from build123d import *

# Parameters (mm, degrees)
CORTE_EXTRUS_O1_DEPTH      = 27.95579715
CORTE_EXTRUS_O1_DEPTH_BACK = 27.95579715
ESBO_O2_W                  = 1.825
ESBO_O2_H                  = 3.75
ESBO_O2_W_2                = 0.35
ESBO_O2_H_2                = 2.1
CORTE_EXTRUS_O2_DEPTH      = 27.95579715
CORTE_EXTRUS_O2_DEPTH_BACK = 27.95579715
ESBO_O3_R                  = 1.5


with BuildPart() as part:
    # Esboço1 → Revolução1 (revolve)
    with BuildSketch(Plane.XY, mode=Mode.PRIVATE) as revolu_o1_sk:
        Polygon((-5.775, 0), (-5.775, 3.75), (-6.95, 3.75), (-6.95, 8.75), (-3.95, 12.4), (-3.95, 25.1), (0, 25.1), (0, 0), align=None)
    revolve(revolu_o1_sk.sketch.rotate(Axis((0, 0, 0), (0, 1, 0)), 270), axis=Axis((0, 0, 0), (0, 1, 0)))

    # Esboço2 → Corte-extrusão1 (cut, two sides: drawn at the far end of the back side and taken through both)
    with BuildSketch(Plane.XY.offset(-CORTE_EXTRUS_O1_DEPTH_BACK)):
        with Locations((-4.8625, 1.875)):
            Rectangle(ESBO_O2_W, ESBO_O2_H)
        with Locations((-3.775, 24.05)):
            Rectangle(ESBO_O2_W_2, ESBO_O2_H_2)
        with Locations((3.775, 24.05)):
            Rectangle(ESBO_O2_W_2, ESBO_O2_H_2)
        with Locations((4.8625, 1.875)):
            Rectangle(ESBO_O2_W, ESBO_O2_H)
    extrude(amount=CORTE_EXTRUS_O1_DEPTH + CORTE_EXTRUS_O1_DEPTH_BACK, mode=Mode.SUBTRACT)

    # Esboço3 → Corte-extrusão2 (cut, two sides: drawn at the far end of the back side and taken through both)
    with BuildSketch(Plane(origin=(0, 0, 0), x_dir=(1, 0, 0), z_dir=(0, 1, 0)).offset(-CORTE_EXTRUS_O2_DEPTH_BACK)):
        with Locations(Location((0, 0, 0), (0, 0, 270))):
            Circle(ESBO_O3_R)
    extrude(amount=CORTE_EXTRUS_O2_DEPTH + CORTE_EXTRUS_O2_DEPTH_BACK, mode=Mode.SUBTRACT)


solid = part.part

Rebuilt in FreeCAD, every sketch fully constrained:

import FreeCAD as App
import Part
import Sketcher

doc = App.newDocument("Part")
body = doc.addObject("PartDesign::Body", "Body")

# Sketch on XY plane
sketch1 = body.newObject("Sketcher::SketchObject", "Sketch")
sketch1.AttachmentSupport = (doc.getObject("XY_Plane"), [""])
sketch1.MapMode = "FlatFace"
sketch1.addGeometry(Part.LineSegment(App.Vector(-5.775, 3.75, 0), App.Vector(-5.775, 0, 0)), False)
sketch1.addGeometry(Part.LineSegment(App.Vector(-5.775, 0, 0), App.Vector(0, 0, 0)), False)
sketch1.addGeometry(Part.LineSegment(App.Vector(0, 0, 0), App.Vector(0, 25.1, 0)), False)
sketch1.addGeometry(Part.LineSegment(App.Vector(0, 25.1, 0), App.Vector(-3.95, 25.1, 0)), False)
sketch1.addGeometry(Part.LineSegment(App.Vector(-3.95, 25.1, 0), App.Vector(-3.95, 12.4, 0)), False)
sketch1.addGeometry(Part.LineSegment(App.Vector(-3.95, 12.4, 0), App.Vector(-6.95, 8.75, 0)), False)
sketch1.addGeometry(Part.LineSegment(App.Vector(-6.95, 8.75, 0), App.Vector(-6.95, 3.75, 0)), False)
sketch1.addGeometry(Part.LineSegment(App.Vector(-6.95, 3.75, 0), App.Vector(-5.775, 3.75, 0)), False)
sketch1.addConstraint(Sketcher.Constraint("Coincident", 0, 2, 1, 1))
sketch1.addConstraint(Sketcher.Constraint("Coincident", 1, 2, 2, 1))
sketch1.addConstraint(Sketcher.Constraint("Coincident", 2, 2, 3, 1))
sketch1.addConstraint(Sketcher.Constraint("Coincident", 3, 2, 4, 1))
sketch1.addConstraint(Sketcher.Constraint("Coincident", 4, 2, 5, 1))
sketch1.addConstraint(Sketcher.Constraint("Coincident", 5, 2, 6, 1))
sketch1.addConstraint(Sketcher.Constraint("Coincident", 6, 2, 7, 1))
sketch1.addConstraint(Sketcher.Constraint("Coincident", 7, 2, 0, 1))
sketch1.addConstraint(Sketcher.Constraint("Vertical", 0))
sketch1.addConstraint(Sketcher.Constraint("Horizontal", 1))
sketch1.addConstraint(Sketcher.Constraint("Vertical", 2))
sketch1.addConstraint(Sketcher.Constraint("Horizontal", 3))
sketch1.addConstraint(Sketcher.Constraint("Vertical", 4))
sketch1.addConstraint(Sketcher.Constraint("Vertical", 6))
sketch1.addConstraint(Sketcher.Constraint("Horizontal", 7))
sketch1.addConstraint(Sketcher.Constraint("Coincident", 1, 2, -1, 1))
sketch1.addConstraint(Sketcher.Constraint("DistanceY", 6, 2, 6, 1, 5.0))
sketch1.addConstraint(Sketcher.Constraint("DistanceY", 2, 1, 2, 2, 25.1))
sketch1.addConstraint(Sketcher.Constraint("DistanceY", 4, 2, 4, 1, 12.7))
sketch1.addConstraint(Sketcher.Constraint("DistanceX", 5, 2, 4, 2, 3.0))
sketch1.addConstraint(Sketcher.Constraint("DistanceX", 3, 2, 3, 1, 3.95))
sketch1.addConstraint(Sketcher.Constraint("DistanceY", 0, 2, 0, 1, 3.75))
sketch1.addConstraint(Sketcher.Constraint("DistanceX", 1, 1, 1, 2, 5.775))
revolution = body.newObject("PartDesign::Revolution", "Revolution")
revolution.Profile = sketch1
revolution.ReferenceAxis = (sketch1, ["V_Axis"])
revolution.Angle = 360

# Sketch on XY plane
sketch2 = body.newObject("Sketcher::SketchObject", "Sketch001")
sketch2.AttachmentSupport = (doc.getObject("XY_Plane"), [""])
sketch2.MapMode = "FlatFace"
sketch2.addGeometry(Part.LineSegment(App.Vector(-5.775, 3.75, 0), App.Vector(-5.775, 0, 0)), False)
sketch2.addGeometry(Part.LineSegment(App.Vector(-5.775, 0, 0), App.Vector(-3.95, 0, 0)), False)
sketch2.addGeometry(Part.LineSegment(App.Vector(-3.95, 0, 0), App.Vector(-3.95, 3.75, 0)), False)
sketch2.addGeometry(Part.LineSegment(App.Vector(-3.95, 3.75, 0), App.Vector(-5.775, 3.75, 0)), False)
sketch2.addGeometry(Part.LineSegment(App.Vector(-3.95, 25.1, 0), App.Vector(-3.95, 23, 0)), False)
sketch2.addGeometry(Part.LineSegment(App.Vector(-3.95, 23, 0), App.Vector(-3.6, 23, 0)), False)
sketch2.addGeometry(Part.LineSegment(App.Vector(-3.6, 23, 0), App.Vector(-3.6, 25.1, 0)), False)
sketch2.addGeometry(Part.LineSegment(App.Vector(-3.6, 25.1, 0), App.Vector(-3.95, 25.1, 0)), False)
sketch2.addGeometry(Part.LineSegment(App.Vector(3.6, 25.1, 0), App.Vector(3.6, 23, 0)), False)
sketch2.addGeometry(Part.LineSegment(App.Vector(3.6, 23, 0), App.Vector(3.95, 23, 0)), False)
sketch2.addGeometry(Part.LineSegment(App.Vector(3.95, 23, 0), App.Vector(3.95, 25.1, 0)), False)
sketch2.addGeometry(Part.LineSegment(App.Vector(3.95, 25.1, 0), App.Vector(3.6, 25.1, 0)), False)
sketch2.addGeometry(Part.LineSegment(App.Vector(3.95, 3.75, 0), App.Vector(3.95, 0, 0)), False)
sketch2.addGeometry(Part.LineSegment(App.Vector(3.95, 0, 0), App.Vector(5.775, 0, 0)), False)
sketch2.addGeometry(Part.LineSegment(App.Vector(5.775, 0, 0), App.Vector(5.775, 3.75, 0)), False)
sketch2.addGeometry(Part.LineSegment(App.Vector(5.775, 3.75, 0), App.Vector(3.95, 3.75, 0)), False)
sketch2.addConstraint(Sketcher.Constraint("Coincident", 0, 2, 1, 1))
sketch2.addConstraint(Sketcher.Constraint("Coincident", 1, 2, 2, 1))
sketch2.addConstraint(Sketcher.Constraint("Coincident", 2, 2, 3, 1))
sketch2.addConstraint(Sketcher.Constraint("Coincident", 3, 2, 0, 1))
sketch2.addConstraint(Sketcher.Constraint("Coincident", 4, 2, 5, 1))
sketch2.addConstraint(Sketcher.Constraint("Coincident", 5, 2, 6, 1))
sketch2.addConstraint(Sketcher.Constraint("Coincident", 6, 2, 7, 1))
sketch2.addConstraint(Sketcher.Constraint("Coincident", 7, 2, 4, 1))
sketch2.addConstraint(Sketcher.Constraint("Coincident", 8, 2, 9, 1))
sketch2.addConstraint(Sketcher.Constraint("Coincident", 9, 2, 10, 1))
sketch2.addConstraint(Sketcher.Constraint("Coincident", 10, 2, 11, 1))
sketch2.addConstraint(Sketcher.Constraint("Coincident", 11, 2, 8, 1))
sketch2.addConstraint(Sketcher.Constraint("Coincident", 12, 2, 13, 1))
sketch2.addConstraint(Sketcher.Constraint("Coincident", 13, 2, 14, 1))
sketch2.addConstraint(Sketcher.Constraint("Coincident", 14, 2, 15, 1))
sketch2.addConstraint(Sketcher.Constraint("Coincident", 15, 2, 12, 1))
sketch2.addConstraint(Sketcher.Constraint("Vertical", 0))
sketch2.addConstraint(Sketcher.Constraint("Horizontal", 1))
sketch2.addConstraint(Sketcher.Constraint("Vertical", 2))
sketch2.addConstraint(Sketcher.Constraint("Horizontal", 3))
sketch2.addConstraint(Sketcher.Constraint("Vertical", 4))
sketch2.addConstraint(Sketcher.Constraint("Horizontal", 5))
sketch2.addConstraint(Sketcher.Constraint("Vertical", 6))
sketch2.addConstraint(Sketcher.Constraint("Horizontal", 7))
sketch2.addConstraint(Sketcher.Constraint("Vertical", 8))
sketch2.addConstraint(Sketcher.Constraint("Horizontal", 9))
sketch2.addConstraint(Sketcher.Constraint("Vertical", 10))
sketch2.addConstraint(Sketcher.Constraint("Horizontal", 11))
sketch2.addConstraint(Sketcher.Constraint("Vertical", 12))
sketch2.addConstraint(Sketcher.Constraint("Horizontal", 13))
sketch2.addConstraint(Sketcher.Constraint("Vertical", 14))
sketch2.addConstraint(Sketcher.Constraint("Horizontal", 15))
sketch2.addConstraint(Sketcher.Constraint("Symmetric", 1, 2, 12, 2, -1, 1))
sketch2.addConstraint(Sketcher.Constraint("Symmetric", 5, 2, 8, 2, -2))
sketch2.addConstraint(Sketcher.Constraint("Symmetric", 7, 2, 10, 2, -2))
sketch2.addConstraint(Sketcher.Constraint("Symmetric", 0, 2, 13, 2, -2))
sketch2.addConstraint(Sketcher.Constraint("Horizontal", 3, 2, 14, 2))
sketch2.addConstraint(Sketcher.Constraint("Vertical", 2, 2, 4, 2))
sketch2.addConstraint(Sketcher.Constraint("DistanceY", 4, 2, 4, 1, 2.1))
sketch2.addConstraint(Sketcher.Constraint("DistanceY", -1, 1, 4, 2, 23.0))
sketch2.addConstraint(Sketcher.Constraint("DistanceX", 5, 1, 5, 2, 0.35))
sketch2.addConstraint(Sketcher.Constraint("DistanceY", 0, 2, 0, 1, 3.75))
sketch2.addConstraint(Sketcher.Constraint("DistanceX", 5, 2, -1, 1, 3.6))
sketch2.addConstraint(Sketcher.Constraint("DistanceX", 1, 1, 1, 2, 1.825))
pocket1 = body.newObject("PartDesign::Pocket", "Pocket")
pocket1.Profile = sketch2
pocket1.Type = "ThroughAll"
pocket1.Midplane = True

# Sketch on XZ plane
sketch3 = body.newObject("Sketcher::SketchObject", "Sketch002")
sketch3.AttachmentSupport = (doc.getObject("XZ_Plane"), [""])
sketch3.MapMode = "FlatFace"
sketch3.addGeometry(Part.Circle(App.Vector(0, 0, 0), App.Vector(0, 0, 1), 1.5), False)
sketch3.addConstraint(Sketcher.Constraint("Coincident", 0, 3, -1, 1))
sketch3.addConstraint(Sketcher.Constraint("Diameter", 0, 3.0))
pocket2 = body.newObject("PartDesign::Pocket", "Pocket001")
pocket2.Profile = sketch3
pocket2.Type = "ThroughAll"
pocket2.Midplane = True

doc.recompute()
